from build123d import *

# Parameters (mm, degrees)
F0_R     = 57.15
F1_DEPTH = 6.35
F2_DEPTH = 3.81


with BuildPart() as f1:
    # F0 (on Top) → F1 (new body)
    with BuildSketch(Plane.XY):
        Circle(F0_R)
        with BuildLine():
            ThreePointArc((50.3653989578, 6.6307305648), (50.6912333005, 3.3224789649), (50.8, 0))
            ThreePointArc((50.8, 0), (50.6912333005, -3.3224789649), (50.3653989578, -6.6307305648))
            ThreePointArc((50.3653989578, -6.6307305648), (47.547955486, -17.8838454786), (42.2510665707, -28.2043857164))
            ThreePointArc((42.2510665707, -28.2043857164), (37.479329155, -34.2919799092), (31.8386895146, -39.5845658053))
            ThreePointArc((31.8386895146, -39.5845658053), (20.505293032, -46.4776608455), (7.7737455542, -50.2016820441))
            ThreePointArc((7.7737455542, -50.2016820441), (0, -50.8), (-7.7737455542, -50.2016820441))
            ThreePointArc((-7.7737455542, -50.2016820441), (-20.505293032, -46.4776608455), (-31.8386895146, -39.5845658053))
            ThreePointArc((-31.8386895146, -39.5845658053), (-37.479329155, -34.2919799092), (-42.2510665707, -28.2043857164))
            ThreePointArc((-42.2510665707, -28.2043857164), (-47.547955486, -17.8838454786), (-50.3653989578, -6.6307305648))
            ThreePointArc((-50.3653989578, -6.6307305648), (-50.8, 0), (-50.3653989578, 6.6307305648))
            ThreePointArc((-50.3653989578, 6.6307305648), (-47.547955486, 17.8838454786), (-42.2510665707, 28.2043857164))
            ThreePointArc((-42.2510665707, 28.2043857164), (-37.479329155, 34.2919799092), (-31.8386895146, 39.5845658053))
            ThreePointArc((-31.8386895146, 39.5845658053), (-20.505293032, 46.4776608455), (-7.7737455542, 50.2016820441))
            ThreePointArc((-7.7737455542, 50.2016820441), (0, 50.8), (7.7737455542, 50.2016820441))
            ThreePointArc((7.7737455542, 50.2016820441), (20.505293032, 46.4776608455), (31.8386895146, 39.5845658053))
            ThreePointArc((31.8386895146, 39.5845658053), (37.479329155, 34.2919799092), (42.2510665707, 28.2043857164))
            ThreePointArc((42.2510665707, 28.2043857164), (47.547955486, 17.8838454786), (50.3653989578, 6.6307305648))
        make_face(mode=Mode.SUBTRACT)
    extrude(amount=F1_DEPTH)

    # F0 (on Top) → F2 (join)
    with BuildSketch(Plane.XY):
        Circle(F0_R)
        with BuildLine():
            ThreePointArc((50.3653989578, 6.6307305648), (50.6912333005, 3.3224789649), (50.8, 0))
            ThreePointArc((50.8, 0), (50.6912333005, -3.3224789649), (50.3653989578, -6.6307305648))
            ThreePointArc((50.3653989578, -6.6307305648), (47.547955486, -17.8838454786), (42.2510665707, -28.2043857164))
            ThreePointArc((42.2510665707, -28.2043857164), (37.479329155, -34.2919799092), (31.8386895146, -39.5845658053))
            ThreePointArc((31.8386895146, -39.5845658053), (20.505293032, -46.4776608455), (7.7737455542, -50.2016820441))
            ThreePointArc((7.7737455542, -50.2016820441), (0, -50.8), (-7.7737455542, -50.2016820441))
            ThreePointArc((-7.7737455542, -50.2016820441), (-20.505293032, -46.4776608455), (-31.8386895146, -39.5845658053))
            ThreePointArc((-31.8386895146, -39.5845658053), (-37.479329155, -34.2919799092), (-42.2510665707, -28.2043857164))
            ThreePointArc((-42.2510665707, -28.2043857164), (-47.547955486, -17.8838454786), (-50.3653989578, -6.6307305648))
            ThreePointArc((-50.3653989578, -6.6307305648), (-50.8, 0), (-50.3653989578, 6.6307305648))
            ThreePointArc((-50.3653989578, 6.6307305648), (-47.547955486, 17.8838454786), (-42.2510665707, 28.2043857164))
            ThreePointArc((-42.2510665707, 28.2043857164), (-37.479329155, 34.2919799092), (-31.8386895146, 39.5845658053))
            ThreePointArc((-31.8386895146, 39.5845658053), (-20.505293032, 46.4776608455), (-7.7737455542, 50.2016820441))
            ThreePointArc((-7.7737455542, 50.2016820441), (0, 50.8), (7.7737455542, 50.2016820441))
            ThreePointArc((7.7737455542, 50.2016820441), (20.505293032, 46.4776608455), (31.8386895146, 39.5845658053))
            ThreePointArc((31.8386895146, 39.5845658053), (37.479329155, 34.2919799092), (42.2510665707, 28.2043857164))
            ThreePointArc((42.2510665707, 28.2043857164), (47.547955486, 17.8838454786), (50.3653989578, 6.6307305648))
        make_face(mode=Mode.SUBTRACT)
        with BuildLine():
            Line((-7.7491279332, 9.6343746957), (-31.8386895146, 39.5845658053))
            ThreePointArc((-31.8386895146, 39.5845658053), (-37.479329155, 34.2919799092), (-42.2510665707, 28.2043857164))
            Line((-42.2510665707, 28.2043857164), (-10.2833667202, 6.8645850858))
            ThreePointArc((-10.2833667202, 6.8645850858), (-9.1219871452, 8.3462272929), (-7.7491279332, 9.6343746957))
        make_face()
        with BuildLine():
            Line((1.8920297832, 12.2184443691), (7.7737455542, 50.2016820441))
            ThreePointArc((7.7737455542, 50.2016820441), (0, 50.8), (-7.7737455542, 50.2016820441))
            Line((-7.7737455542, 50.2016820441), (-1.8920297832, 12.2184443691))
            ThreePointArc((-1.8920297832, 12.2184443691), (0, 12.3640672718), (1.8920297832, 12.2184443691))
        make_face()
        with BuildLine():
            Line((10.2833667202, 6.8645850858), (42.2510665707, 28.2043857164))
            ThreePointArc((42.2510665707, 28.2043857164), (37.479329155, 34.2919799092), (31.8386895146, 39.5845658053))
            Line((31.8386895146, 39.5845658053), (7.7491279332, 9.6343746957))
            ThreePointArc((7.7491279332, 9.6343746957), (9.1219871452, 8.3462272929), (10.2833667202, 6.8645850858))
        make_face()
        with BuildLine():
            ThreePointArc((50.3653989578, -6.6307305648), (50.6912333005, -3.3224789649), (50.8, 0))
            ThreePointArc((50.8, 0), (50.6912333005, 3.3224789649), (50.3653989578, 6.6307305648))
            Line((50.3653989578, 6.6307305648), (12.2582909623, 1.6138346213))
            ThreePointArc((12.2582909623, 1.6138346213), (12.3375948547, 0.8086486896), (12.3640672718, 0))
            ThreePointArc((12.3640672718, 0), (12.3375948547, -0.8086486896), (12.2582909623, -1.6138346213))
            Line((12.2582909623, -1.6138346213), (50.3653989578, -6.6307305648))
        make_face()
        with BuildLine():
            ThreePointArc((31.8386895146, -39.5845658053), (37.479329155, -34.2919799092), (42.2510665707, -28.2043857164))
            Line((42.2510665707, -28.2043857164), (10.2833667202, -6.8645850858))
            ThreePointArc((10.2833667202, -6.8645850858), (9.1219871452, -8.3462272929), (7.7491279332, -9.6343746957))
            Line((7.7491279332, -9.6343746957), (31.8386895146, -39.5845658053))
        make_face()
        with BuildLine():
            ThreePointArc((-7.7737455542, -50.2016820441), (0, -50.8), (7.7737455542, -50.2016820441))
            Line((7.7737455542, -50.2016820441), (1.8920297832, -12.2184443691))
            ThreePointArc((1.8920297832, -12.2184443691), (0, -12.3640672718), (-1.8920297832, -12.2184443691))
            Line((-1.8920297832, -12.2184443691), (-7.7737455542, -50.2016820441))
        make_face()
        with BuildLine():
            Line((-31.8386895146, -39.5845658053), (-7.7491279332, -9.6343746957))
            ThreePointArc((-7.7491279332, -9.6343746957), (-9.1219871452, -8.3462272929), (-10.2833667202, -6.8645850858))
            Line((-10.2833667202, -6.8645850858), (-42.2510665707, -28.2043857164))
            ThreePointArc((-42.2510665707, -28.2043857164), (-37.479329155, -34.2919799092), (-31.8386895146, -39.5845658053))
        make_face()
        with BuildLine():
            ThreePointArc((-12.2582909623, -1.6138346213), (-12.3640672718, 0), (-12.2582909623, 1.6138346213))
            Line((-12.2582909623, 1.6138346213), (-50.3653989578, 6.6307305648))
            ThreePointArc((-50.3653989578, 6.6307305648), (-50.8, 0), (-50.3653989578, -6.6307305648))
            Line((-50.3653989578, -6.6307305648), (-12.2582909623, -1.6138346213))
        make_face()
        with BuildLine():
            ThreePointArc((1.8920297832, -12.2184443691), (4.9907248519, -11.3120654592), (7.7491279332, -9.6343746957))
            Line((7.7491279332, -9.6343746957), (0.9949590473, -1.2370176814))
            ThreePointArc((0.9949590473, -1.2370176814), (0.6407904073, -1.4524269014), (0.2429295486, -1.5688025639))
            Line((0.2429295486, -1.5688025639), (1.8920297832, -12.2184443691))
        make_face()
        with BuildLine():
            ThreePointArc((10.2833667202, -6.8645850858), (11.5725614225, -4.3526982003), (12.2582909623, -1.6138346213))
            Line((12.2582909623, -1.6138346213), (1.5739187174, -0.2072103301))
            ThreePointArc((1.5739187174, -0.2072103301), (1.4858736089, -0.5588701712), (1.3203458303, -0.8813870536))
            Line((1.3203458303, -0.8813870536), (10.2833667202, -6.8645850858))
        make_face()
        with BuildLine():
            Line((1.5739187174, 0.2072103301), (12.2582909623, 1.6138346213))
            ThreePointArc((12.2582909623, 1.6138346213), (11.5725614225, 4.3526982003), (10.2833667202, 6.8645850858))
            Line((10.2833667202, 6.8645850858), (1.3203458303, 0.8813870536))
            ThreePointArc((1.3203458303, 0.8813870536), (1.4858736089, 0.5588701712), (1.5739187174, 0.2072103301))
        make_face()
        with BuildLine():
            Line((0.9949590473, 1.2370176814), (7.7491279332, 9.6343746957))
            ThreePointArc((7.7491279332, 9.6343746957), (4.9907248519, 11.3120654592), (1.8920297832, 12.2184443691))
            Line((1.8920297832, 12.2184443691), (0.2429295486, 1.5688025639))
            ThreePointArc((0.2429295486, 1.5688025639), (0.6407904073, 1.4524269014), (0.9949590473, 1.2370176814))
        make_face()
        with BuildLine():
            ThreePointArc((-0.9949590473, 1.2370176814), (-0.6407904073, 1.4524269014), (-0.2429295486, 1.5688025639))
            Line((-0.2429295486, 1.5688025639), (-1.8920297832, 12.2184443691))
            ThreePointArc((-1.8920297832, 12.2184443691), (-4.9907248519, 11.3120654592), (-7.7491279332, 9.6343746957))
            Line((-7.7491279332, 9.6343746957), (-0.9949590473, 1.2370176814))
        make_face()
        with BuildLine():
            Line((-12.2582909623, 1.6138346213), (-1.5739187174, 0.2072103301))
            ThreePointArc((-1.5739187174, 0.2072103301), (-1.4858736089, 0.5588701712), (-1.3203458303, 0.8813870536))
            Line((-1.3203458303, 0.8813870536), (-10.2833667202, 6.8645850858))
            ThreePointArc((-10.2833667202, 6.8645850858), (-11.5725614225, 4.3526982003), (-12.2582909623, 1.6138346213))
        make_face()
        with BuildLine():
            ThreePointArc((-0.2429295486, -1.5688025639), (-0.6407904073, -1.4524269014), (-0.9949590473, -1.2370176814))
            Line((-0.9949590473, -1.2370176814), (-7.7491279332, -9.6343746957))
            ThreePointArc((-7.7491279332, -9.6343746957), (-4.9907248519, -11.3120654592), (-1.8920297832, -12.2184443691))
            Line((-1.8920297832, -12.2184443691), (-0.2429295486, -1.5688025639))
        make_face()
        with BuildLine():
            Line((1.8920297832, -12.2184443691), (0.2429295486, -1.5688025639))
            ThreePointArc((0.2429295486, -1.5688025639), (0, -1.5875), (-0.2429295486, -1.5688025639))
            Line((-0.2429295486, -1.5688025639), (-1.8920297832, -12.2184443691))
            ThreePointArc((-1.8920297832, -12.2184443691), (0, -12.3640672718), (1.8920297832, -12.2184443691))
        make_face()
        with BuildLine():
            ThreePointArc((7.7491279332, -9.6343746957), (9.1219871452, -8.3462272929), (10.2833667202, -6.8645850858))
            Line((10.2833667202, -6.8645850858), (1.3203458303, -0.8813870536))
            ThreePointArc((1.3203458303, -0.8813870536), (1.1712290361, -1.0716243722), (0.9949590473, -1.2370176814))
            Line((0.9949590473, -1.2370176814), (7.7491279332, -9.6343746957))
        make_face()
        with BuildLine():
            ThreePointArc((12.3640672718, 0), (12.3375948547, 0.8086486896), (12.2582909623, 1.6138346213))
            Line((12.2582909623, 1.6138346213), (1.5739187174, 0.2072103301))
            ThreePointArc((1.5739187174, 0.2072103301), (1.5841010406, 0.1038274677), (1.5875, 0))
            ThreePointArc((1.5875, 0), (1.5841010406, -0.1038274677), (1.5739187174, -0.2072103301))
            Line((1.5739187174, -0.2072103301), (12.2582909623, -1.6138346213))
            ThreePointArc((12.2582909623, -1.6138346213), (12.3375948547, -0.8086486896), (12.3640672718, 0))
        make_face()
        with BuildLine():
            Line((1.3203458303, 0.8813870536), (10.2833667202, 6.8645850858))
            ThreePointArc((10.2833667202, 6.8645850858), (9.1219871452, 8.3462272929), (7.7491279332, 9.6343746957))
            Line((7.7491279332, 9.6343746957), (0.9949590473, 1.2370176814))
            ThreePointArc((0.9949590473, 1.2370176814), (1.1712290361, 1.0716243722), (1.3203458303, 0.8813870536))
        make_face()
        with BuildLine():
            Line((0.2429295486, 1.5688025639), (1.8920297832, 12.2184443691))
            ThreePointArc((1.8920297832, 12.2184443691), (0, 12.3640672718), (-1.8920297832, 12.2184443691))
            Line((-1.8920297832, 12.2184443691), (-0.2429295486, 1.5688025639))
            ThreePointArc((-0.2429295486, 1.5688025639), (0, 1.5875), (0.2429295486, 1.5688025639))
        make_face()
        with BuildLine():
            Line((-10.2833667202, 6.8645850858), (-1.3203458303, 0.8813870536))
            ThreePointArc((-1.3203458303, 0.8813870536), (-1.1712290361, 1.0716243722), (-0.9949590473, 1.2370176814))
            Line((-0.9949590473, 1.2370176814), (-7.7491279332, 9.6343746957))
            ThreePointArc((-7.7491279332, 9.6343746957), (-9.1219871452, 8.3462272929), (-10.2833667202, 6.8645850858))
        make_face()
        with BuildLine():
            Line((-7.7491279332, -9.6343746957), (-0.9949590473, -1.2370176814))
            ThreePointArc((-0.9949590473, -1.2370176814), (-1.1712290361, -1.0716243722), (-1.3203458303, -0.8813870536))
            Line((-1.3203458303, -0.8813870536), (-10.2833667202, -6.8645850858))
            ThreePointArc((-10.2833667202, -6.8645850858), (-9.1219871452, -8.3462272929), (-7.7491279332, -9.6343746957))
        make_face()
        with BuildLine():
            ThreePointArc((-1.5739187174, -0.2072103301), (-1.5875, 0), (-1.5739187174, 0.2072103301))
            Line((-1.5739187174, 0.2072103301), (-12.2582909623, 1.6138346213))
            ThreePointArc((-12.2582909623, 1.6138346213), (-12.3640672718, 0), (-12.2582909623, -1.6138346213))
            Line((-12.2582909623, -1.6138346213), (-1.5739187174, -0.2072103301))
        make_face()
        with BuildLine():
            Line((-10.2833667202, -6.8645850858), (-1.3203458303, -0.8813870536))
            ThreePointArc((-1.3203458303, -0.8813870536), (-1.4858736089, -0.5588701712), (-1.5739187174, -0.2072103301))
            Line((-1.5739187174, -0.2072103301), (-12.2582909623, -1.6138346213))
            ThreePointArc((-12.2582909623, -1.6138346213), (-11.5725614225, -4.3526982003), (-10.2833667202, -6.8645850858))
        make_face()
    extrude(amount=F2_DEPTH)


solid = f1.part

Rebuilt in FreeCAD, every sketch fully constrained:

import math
import FreeCAD as App
import Part
import Sketcher

V = App.Vector
Q = App.Units.Quantity

doc = App.newDocument("Part")
body = doc.addObject("PartDesign::Body", "Body")

sketch1 = body.newObject("Sketcher::SketchObject", "Sketch")
sketch1.AttachmentSupport = (doc.getObject("XY_Plane"), [""])
sketch1.MapMode = "FlatFace"
sketch1.addGeometry([
    Part.Circle(V(0, 0, 0), V(0, 0, 1), 57),
    Part.ArcOfCircle(Part.Circle(V(0, 0, 0), V(0, 0, 1), 51), math.radians(8), math.radians(34)),
    Part.ArcOfCircle(Part.Circle(V(0, 0, 0), V(0, 0, 1), 51), math.radians(0), math.radians(7.5)),
    Part.ArcOfCircle(Part.Circle(V(0, 0, 0), V(0, 0, 1), 51), math.radians(-7.5), math.radians(0)),
    Part.ArcOfCircle(Part.Circle(V(0, 0, 0), V(0, 0, 1), 51), math.radians(-34), math.radians(-8)),
    Part.ArcOfCircle(Part.Circle(V(0, 0, 0), V(0, 0, 1), 51), math.radians(-51.19), math.radians(-33.72)),
    Part.ArcOfCircle(Part.Circle(V(0, 0, 0), V(0, 0, 1), 51), math.radians(-81), math.radians(-51)),
    Part.ArcOfCircle(Part.Circle(V(0, 0, 0), V(0, 0, 1), 51), math.radians(-98.8), math.radians(-81.2)),
    Part.ArcOfCircle(Part.Circle(V(0, 0, 0), V(0, 0, 1), 51), math.radians(-129), math.radians(-99)),
    Part.ArcOfCircle(Part.Circle(V(0, 0, 0), V(0, 0, 1), 51), math.radians(-146.28), math.radians(-128.81)),
    Part.ArcOfCircle(Part.Circle(V(0, 0, 0), V(0, 0, 1), 51), math.radians(-172), math.radians(-146)),
    Part.ArcOfCircle(Part.Circle(V(0, 0, 0), V(0, 0, 1), 51), math.radians(172.5), math.radians(187.5)),
    Part.ArcOfCircle(Part.Circle(V(0, 0, 0), V(0, 0, 1), 51), math.radians(146), math.radians(172)),
    Part.ArcOfCircle(Part.Circle(V(0, 0, 0), V(0, 0, 1), 51), math.radians(128.81), math.radians(146.28)),
    Part.ArcOfCircle(Part.Circle(V(0, 0, 0), V(0, 0, 1), 51), math.radians(99), math.radians(129)),
    Part.ArcOfCircle(Part.Circle(V(0, 0, 0), V(0, 0, 1), 51), math.radians(81.2), math.radians(98.8)),
    Part.ArcOfCircle(Part.Circle(V(0, 0, 0), V(0, 0, 1), 51), math.radians(51), math.radians(81)),
    Part.ArcOfCircle(Part.Circle(V(0, 0, 0), V(0, 0, 1), 51), math.radians(33.72), math.radians(51.19)),
], False)
sketch1.addConstraint([
    Sketcher.Constraint("Tangent", 1, 1, 2, 2),
    Sketcher.Constraint("Tangent", 2, 1, 3, 2),
    Sketcher.Constraint("Tangent", 3, 1, 4, 2),
    Sketcher.Constraint("Tangent", 4, 1, 5, 2),
    Sketcher.Constraint("Tangent", 5, 1, 6, 2),
    Sketcher.Constraint("Tangent", 6, 1, 7, 2),
    Sketcher.Constraint("Tangent", 7, 1, 8, 2),
    Sketcher.Constraint("Tangent", 8, 1, 9, 2),
    Sketcher.Constraint("Tangent", 9, 1, 10, 2),
    Sketcher.Constraint("Tangent", 10, 1, 11, 2),
    Sketcher.Constraint("Tangent", 11, 1, 12, 2),
    Sketcher.Constraint("Tangent", 12, 1, 13, 2),
    Sketcher.Constraint("Tangent", 13, 1, 14, 2),
    Sketcher.Constraint("Tangent", 14, 1, 15, 2),
    Sketcher.Constraint("Tangent", 15, 1, 16, 2),
    Sketcher.Constraint("Tangent", 16, 1, 17, 2),
    Sketcher.Constraint("Tangent", 17, 1, 1, 2),
    Sketcher.Constraint("Coincident", 0, 3, -1, 1),
    Sketcher.Constraint("Coincident", 1, 3, -1, 1),
    Sketcher.Constraint("Coincident", 3, 3, -1, 1),
    Sketcher.Constraint("Coincident", 5, 3, -1, 1),
    Sketcher.Constraint("Coincident", 7, 3, -1, 1),
    Sketcher.Constraint("Coincident", 9, 3, -1, 1),
    Sketcher.Constraint("Coincident", 11, 3, -1, 1),
    Sketcher.Constraint("Coincident", 13, 3, -1, 1),
    Sketcher.Constraint("Coincident", 15, 3, -1, 1),
    Sketcher.Constraint("PointOnObject", 2, 1, -1),
    Sketcher.Constraint("Horizontal", 6, 1, 7, 1),
    Sketcher.Constraint("Horizontal", 5, 1, 8, 1),
    Sketcher.Constraint("Horizontal", 4, 1, 9, 1),
    Sketcher.Constraint("Horizontal", 3, 1, 10, 1),
    Sketcher.Constraint("Horizontal", 1, 1, 11, 1),
    Sketcher.Constraint("Horizontal", 14, 1, 15, 1),
    Sketcher.Constraint("Horizontal", 13, 1, 16, 1),
    Sketcher.Constraint("Horizontal", 12, 1, 17, 1),
    Sketcher.Constraint("Vertical", 1, 1, 3, 1),
    Sketcher.Constraint("Vertical", 9, 1, 12, 1),
    Sketcher.Constraint("Vertical", 8, 1, 13, 1),
    Sketcher.Constraint("Vertical", 7, 1, 14, 1),
    Sketcher.Constraint("Radius", 1, Q("2 in")),
    Sketcher.Constraint("Diameter", 0, Q("4.5 in")),
    Sketcher.Constraint("DistanceY", 5, 1, 1, 1, Q("1.8194999 in")),
    Sketcher.Constraint("DistanceX", -1, 1, 1, 1, 50.365399),
    Sketcher.Constraint("DistanceY", 5, 1, 4, 1, 11.38018),
    Sketcher.Constraint("DistanceX", 6, 1, 4, 1, 34.477321),
])
pad1 = body.newObject("PartDesign::Pad", "Pad")
pad1.Profile = sketch1
pad1.Length = Q("0.25 in")

sketch2 = body.newObject("Sketcher::SketchObject", "Sketch001")
sketch2.AttachmentSupport = (doc.getObject("XY_Plane"), [""])
sketch2.MapMode = "FlatFace"
sketch2.addGeometry([
    Part.Circle(V(0, 0, 0), V(0, 0, 1), 57.15),
    Part.LineSegment(V(-31.84, -39.58, 0), V(-7.75, -9.63, 0)),
    Part.ArcOfCircle(Part.Circle(V(0, 0, 0), V(0, 0, 1), 12.36), math.radians(-129), math.radians(-99)),
    Part.LineSegment(V(-1.89, -12.22, 0), V(-7.77, -50.2, 0)),
    Part.ArcOfCircle(Part.Circle(V(0, 0, 0), V(0, 0, 1), 50.8), math.radians(-129), math.radians(-99)),
    Part.LineSegment(V(-50.37, -6.63, 0), V(-12.26, -1.61, 0)),
    Part.ArcOfCircle(Part.Circle(V(0, 0, 0), V(0, 0, 1), 12.36), math.radians(-172), math.radians(-146)),
    Part.LineSegment(V(-10.28, -6.86, 0), V(-42.25, -28.2, 0)),
    Part.ArcOfCircle(Part.Circle(V(0, 0, 0), V(0, 0, 1), 50.8), math.radians(-172), math.radians(-146)),
    Part.ArcOfCircle(Part.Circle(V(0, 0, 0), V(0, 0, 1), 1.59), math.radians(172.5), math.radians(187.5)),
    Part.ArcOfCircle(Part.Circle(V(0, 0, 0), V(0, 0, 1), 1.59), math.radians(146), math.radians(173)),
    Part.ArcOfCircle(Part.Circle(V(0, 0, 0), V(0, 0, 1), 1.59), math.radians(128.81), math.radians(146.28)),
    Part.ArcOfCircle(Part.Circle(V(0, 0, 0), V(0, 0, 1), 1.59), math.radians(99), math.radians(129)),
    Part.ArcOfCircle(Part.Circle(V(0, 0, 0), V(0, 0, 1), 1.59), math.radians(81.2), math.radians(98.8)),
    Part.ArcOfCircle(Part.Circle(V(0, 0, 0), V(0, 0, 1), 1.59), math.radians(51), math.radians(81)),
    Part.ArcOfCircle(Part.Circle(V(0, 0, 0), V(0, 0, 1), 1.59), math.radians(33.72), math.radians(51.19)),
    Part.ArcOfCircle(Part.Circle(V(0, 0, 0), V(0, 0, 1), 1.59), math.radians(7), math.radians(34)),
    Part.ArcOfCircle(Part.Circle(V(0, 0, 0), V(0, 0, 1), 1.59), math.radians(0), math.radians(7.5)),
    Part.ArcOfCircle(Part.Circle(V(0, 0, 0), V(0, 0, 1), 1.59), math.radians(-7.5), math.radians(0)),
    Part.ArcOfCircle(Part.Circle(V(0, 0, 0), V(0, 0, 1), 1.59), math.radians(-34), math.radians(-7)),
    Part.ArcOfCircle(Part.Circle(V(0, 0, 0), V(0, 0, 1), 1.59), math.radians(-51.19), math.radians(-33.72)),
    Part.ArcOfCircle(Part.Circle(V(0, 0, 0), V(0, 0, 1), 1.59), math.radians(-81), math.radians(-51)),
    Part.ArcOfCircle(Part.Circle(V(0, 0, 0), V(0, 0, 1), 1.59), math.radians(-98.8), math.radians(-81.2)),
    Part.ArcOfCircle(Part.Circle(V(0, 0, 0), V(0, 0, 1), 1.59), math.radians(-129), math.radians(-99)),
    Part.ArcOfCircle(Part.Circle(V(0, 0, 0), V(0, 0, 1), 1.59), math.radians(-146.28), math.radians(-128.81)),
    Part.ArcOfCircle(Part.Circle(V(0, 0, 0), V(0, 0, 1), 1.59), math.radians(-173), math.radians(-146)),
    Part.ArcOfCircle(Part.Circle(V(0, 0, 0), V(0, 0, 1), 12.36), math.radians(-81), math.radians(-51)),
    Part.LineSegment(V(7.75, -9.63, 0), V(31.84, -39.58, 0)),
    Part.ArcOfCircle(Part.Circle(V(0, 0, 0), V(0, 0, 1), 50.8), math.radians(-81), math.radians(-51)),
    Part.LineSegment(V(7.77, -50.2, 0), V(1.89, -12.22, 0)),
    Part.ArcOfCircle(Part.Circle(V(0, 0, 0), V(0, 0, 1), 12.36), math.radians(-34), math.radians(-8)),
    Part.LineSegment(V(12.26, -1.61, 0), V(50.37, -6.63, 0)),
    Part.ArcOfCircle(Part.Circle(V(0, 0, 0), V(0, 0, 1), 50.8), math.radians(-34), math.radians(-8)),
    Part.LineSegment(V(42.25, -28.2, 0), V(10.28, -6.86, 0)),
    Part.ArcOfCircle(Part.Circle(V(0, 0, 0), V(0, 0, 1), 12.36), math.radians(146), math.radians(172)),
    Part.LineSegment(V(-12.26, 1.61, 0), V(-50.37, 6.63, 0)),
    Part.ArcOfCircle(Part.Circle(V(0, 0, 0), V(0, 0, 1), 50.8), math.radians(146), math.radians(172)),
    Part.LineSegment(V(-42.25, 28.2, 0), V(-10.28, 6.86, 0)),
    Part.ArcOfCircle(Part.Circle(V(0, 0, 0), V(0, 0, 1), 12.36), math.radians(99), math.radians(129)),
    Part.LineSegment(V(-7.75, 9.63, 0), V(-31.84, 39.58, 0)),
    Part.ArcOfCircle(Part.Circle(V(0, 0, 0), V(0, 0, 1), 50.8), math.radians(99), math.radians(129)),
    Part.LineSegment(V(-7.77, 50.2, 0), V(-1.89, 12.22, 0)),
    Part.ArcOfCircle(Part.Circle(V(0, 0, 0), V(0, 0, 1), 12.36), math.radians(8), math.radians(34)),
    Part.LineSegment(V(10.28, 6.86, 0), V(42.25, 28.2, 0)),
    Part.ArcOfCircle(Part.Circle(V(0, 0, 0), V(0, 0, 1), 50.8), math.radians(8), math.radians(34)),
    Part.LineSegment(V(50.37, 6.63, 0), V(12.26, 1.61, 0)),
    Part.ArcOfCircle(Part.Circle(V(0, 0, 0), V(0, 0, 1), 12.36), math.radians(51), math.radians(81)),
    Part.LineSegment(V(1.89, 12.22, 0), V(7.77, 50.2, 0)),
    Part.ArcOfCircle(Part.Circle(V(0, 0, 0), V(0, 0, 1), 50.8), math.radians(51), math.radians(81)),
    Part.LineSegment(V(31.84, 39.58, 0), V(7.75, 9.63, 0)),
], False)
sketch2.addConstraint([
    Sketcher.Constraint("Coincident", 1, 2, 2, 1),
    Sketcher.Constraint("Coincident", 2, 2, 3, 1),
    Sketcher.Constraint("Coincident", 3, 2, 4, 2),
    Sketcher.Constraint("Coincident", 4, 1, 1, 1),
    Sketcher.Constraint("Coincident", 5, 2, 6, 1),
    Sketcher.Constraint("Coincident", 6, 2, 7, 1),
    Sketcher.Constraint("Coincident", 7, 2, 8, 2),
    Sketcher.Constraint("Coincident", 8, 1, 5, 1),
    Sketcher.Constraint("Tangent", 9, 1, 10, 2),
    Sketcher.Constraint("Tangent", 10, 1, 11, 2),
    Sketcher.Constraint("Tangent", 11, 1, 12, 2),
    Sketcher.Constraint("Tangent", 12, 1, 13, 2),
    Sketcher.Constraint("Tangent", 13, 1, 14, 2),
    Sketcher.Constraint("Tangent", 14, 1, 15, 2),
    Sketcher.Constraint("Tangent", 15, 1, 16, 2),
    Sketcher.Constraint("Tangent", 16, 1, 17, 2),
    Sketcher.Constraint("Tangent", 17, 1, 18, 2),
    Sketcher.Constraint("Tangent", 18, 1, 19, 2),
    Sketcher.Constraint("Tangent", 19, 1, 20, 2),
    Sketcher.Constraint("Tangent", 20, 1, 21, 2),
    Sketcher.Constraint("Tangent", 21, 1, 22, 2),
    Sketcher.Constraint("Tangent", 22, 1, 23, 2),
    Sketcher.Constraint("Tangent", 23, 1, 24, 2),
    Sketcher.Constraint("Tangent", 24, 1, 25, 2),
    Sketcher.Constraint("Tangent", 25, 1, 9, 2),
    Sketcher.Constraint("Coincident", 26, 2, 27, 1),
    Sketcher.Constraint("Coincident", 27, 2, 28, 2),
    Sketcher.Constraint("Coincident", 28, 1, 29, 1),
    Sketcher.Constraint("Coincident", 29, 2, 26, 1),
    Sketcher.Constraint("Coincident", 30, 2, 31, 1),
    Sketcher.Constraint("Coincident", 31, 2, 32, 2),
    Sketcher.Constraint("Coincident", 32, 1, 33, 1),
    Sketcher.Constraint("Coincident", 33, 2, 30, 1),
    Sketcher.Constraint("Coincident", 34, 2, 35, 1),
    Sketcher.Constraint("Coincident", 35, 2, 36, 2),
    Sketcher.Constraint("Coincident", 36, 1, 37, 1),
    Sketcher.Constraint("Coincident", 37, 2, 34, 1),
    Sketcher.Constraint("Coincident", 38, 2, 39, 1),
    Sketcher.Constraint("Coincident", 39, 2, 40, 2),
    Sketcher.Constraint("Coincident", 40, 1, 41, 1),
    Sketcher.Constraint("Coincident", 41, 2, 38, 1),
    Sketcher.Constraint("Coincident", 42, 2, 43, 1),
    Sketcher.Constraint("Coincident", 43, 2, 44, 2),
    Sketcher.Constraint("Coincident", 44, 1, 45, 1),
    Sketcher.Constraint("Coincident", 45, 2, 42, 1),
    Sketcher.Constraint("Coincident", 46, 2, 47, 1),
    Sketcher.Constraint("Coincident", 47, 2, 48, 2),
    Sketcher.Constraint("Coincident", 48, 1, 49, 1),
    Sketcher.Constraint("Coincident", 49, 2, 46, 1),
    Sketcher.Constraint("Coincident", 0, 3, -1, 1),
    Sketcher.Constraint("Coincident", 2, 3, -1, 1),
    Sketcher.Constraint("Coincident", 4, 3, -1, 1),
    Sketcher.Constraint("Coincident", 6, 3, -1, 1),
    Sketcher.Constraint("Coincident", 8, 3, -1, 1),
    Sketcher.Constraint("Coincident", 9, 3, -1, 1),
    Sketcher.Constraint("Coincident", 11, 3, -1, 1),
    Sketcher.Constraint("Coincident", 13, 3, -1, 1),
    Sketcher.Constraint("Coincident", 15, 3, -1, 1),
    Sketcher.Constraint("Coincident", 17, 3, -1, 1),
    Sketcher.Constraint("Coincident", 19, 3, -1, 1),
    Sketcher.Constraint("Coincident", 21, 3, -1, 1),
    Sketcher.Constraint("Coincident", 23, 3, -1, 1),
    Sketcher.Constraint("Coincident", 26, 3, -1, 1),
    Sketcher.Constraint("Coincident", 28, 3, -1, 1),
    Sketcher.Constraint("Coincident", 30, 3, -1, 1),
    Sketcher.Constraint("Coincident", 32, 3, -1, 1),
    Sketcher.Constraint("Coincident", 34, 3, -1, 1),
    Sketcher.Constraint("Coincident", 36, 3, -1, 1),
    Sketcher.Constraint("Coincident", 38, 3, -1, 1),
    Sketcher.Constraint("Coincident", 40, 3, -1, 1),
    Sketcher.Constraint("Coincident", 42, 3, -1, 1),
    Sketcher.Constraint("Coincident", 44, 3, -1, 1),
    Sketcher.Constraint("Coincident", 46, 3, -1, 1),
    Sketcher.Constraint("Coincident", 48, 3, -1, 1),
    Sketcher.Constraint("Equal", 2, 6),
    Sketcher.Constraint("Equal", 4, 8),
    Sketcher.Constraint("Equal", 6, 26),
    Sketcher.Constraint("Equal", 8, 28),
    Sketcher.Constraint("Equal", 26, 30),
    Sketcher.Constraint("Equal", 28, 32),
    Sketcher.Constraint("Equal", 30, 34),
    Sketcher.Constraint("Equal", 32, 36),
    Sketcher.Constraint("Equal", 34, 38),
    Sketcher.Constraint("Equal", 36, 40),
    Sketcher.Constraint("Equal", 38, 42),
    Sketcher.Constraint("Equal", 40, 44),
    Sketcher.Constraint("Equal", 42, 46),
    Sketcher.Constraint("Equal", 44, 48),
    Sketcher.Constraint("PointOnObject", 17, 1, -1),
    Sketcher.Constraint("Parallel", 31, 35),
    Sketcher.Constraint("Parallel", 33, 37),
    Sketcher.Constraint("Parallel", 27, 39),
    Sketcher.Constraint("Parallel", 29, 41),
    Sketcher.Constraint("Parallel", 7, 43),
    Sketcher.Constraint("Parallel", 5, 45),
    Sketcher.Constraint("Parallel", 3, 47),
    Sketcher.Constraint("Parallel", 1, 49),
    Sketcher.Constraint("Horizontal", 12, 1, 13, 1),
    Sketcher.Constraint("Horizontal", 11, 1, 14, 1),
    Sketcher.Constraint("Horizontal", 10, 1, 15, 1),
    Sketcher.Constraint("Horizontal", 9, 1, 16, 1),
    Sketcher.Constraint("Horizontal", 21, 1, 22, 1),
    Sketcher.Constraint("Horizontal", 20, 1, 23, 1),
    Sketcher.Constraint("Horizontal", 19, 1, 24, 1),
    Sketcher.Constraint("Horizontal", 18, 1, 25, 1),
    Sketcher.Constraint("Horizontal", 1, 2, 26, 2),
    Sketcher.Constraint("Horizontal", 4, 1, 27, 2),
    Sketcher.Constraint("Horizontal", 3, 2, 28, 1),
    Sketcher.Constraint("Horizontal", 2, 2, 29, 2),
    Sketcher.Constraint("Horizontal", 5, 2, 30, 2),
    Sketcher.Constraint("Horizontal", 8, 1, 31, 2),
    Sketcher.Constraint("Horizontal", 7, 2, 32, 1),
    Sketcher.Constraint("Horizontal", 6, 2, 33, 2),
    Sketcher.Constraint("Horizontal", 37, 2, 42, 2),
    Sketcher.Constraint("Horizontal", 35, 2, 44, 1),
    Sketcher.Constraint("Horizontal", 41, 2, 46, 2),
    Sketcher.Constraint("Horizontal", 39, 2, 48, 1),
    Sketcher.Constraint("Vertical", 16, 1, 18, 1),
    Sketcher.Constraint("Vertical", 15, 1, 19, 1),
    Sketcher.Constraint("Vertical", 14, 1, 20, 1),
    Sketcher.Constraint("Vertical", 13, 1, 21, 1),
    Sketcher.Constraint("Vertical", 5, 2, 34, 2),
    Sketcher.Constraint("Vertical", 7, 2, 36, 1),
    Sketcher.Constraint("Vertical", 1, 2, 38, 2),
    Sketcher.Constraint("Vertical", 3, 2, 40, 1),
    Sketcher.Constraint("Radius", 4, Q("2 in")),
    Sketcher.Constraint("Diameter", 0, Q("4.5 in")),
    Sketcher.Constraint("Radius", 9, Q("0.0625 in")),
    Sketcher.Constraint("Angle", 5, Q("7.5 deg")),
    Sketcher.Constraint("Radius", 2, 12.364067),
    Sketcher.Constraint("DistanceX", 8, 1, -1, 1, 50.365399),
    Sketcher.Constraint("DistanceX", 2, 2, -1, 1, 1.89203),
    Sketcher.Constraint("DistanceX", 4, 1, -1, 1, 31.83869),
    Sketcher.Constraint("DistanceX", 9, 1, -1, 1, 1.573919),
    Sketcher.Constraint("DistanceX", 11, 1, -1, 1, 0.994959),
    Sketcher.Constraint("DistanceX", 12, 1, -1, 1, 0.24293),
    Sketcher.Constraint("DistanceX", 1, 2, -1, 1, 7.749128),
    Sketcher.Constraint("DistanceX", 3, 2, -1, 1, 7.773746),
    Sketcher.Constraint("DistanceX", 6, 2, -1, 1, 10.283367),
    Sketcher.Constraint("DistanceX", 7, 2, -1, 1, 42.251067),
    Sketcher.Constraint("DistanceX", 10, 1, -1, 1, 1.320346),
])
pad2 = body.newObject("PartDesign::Pad", "Pad001")
pad2.Profile = sketch2
pad2.Length = Q("0.15 in")

doc.recompute()
